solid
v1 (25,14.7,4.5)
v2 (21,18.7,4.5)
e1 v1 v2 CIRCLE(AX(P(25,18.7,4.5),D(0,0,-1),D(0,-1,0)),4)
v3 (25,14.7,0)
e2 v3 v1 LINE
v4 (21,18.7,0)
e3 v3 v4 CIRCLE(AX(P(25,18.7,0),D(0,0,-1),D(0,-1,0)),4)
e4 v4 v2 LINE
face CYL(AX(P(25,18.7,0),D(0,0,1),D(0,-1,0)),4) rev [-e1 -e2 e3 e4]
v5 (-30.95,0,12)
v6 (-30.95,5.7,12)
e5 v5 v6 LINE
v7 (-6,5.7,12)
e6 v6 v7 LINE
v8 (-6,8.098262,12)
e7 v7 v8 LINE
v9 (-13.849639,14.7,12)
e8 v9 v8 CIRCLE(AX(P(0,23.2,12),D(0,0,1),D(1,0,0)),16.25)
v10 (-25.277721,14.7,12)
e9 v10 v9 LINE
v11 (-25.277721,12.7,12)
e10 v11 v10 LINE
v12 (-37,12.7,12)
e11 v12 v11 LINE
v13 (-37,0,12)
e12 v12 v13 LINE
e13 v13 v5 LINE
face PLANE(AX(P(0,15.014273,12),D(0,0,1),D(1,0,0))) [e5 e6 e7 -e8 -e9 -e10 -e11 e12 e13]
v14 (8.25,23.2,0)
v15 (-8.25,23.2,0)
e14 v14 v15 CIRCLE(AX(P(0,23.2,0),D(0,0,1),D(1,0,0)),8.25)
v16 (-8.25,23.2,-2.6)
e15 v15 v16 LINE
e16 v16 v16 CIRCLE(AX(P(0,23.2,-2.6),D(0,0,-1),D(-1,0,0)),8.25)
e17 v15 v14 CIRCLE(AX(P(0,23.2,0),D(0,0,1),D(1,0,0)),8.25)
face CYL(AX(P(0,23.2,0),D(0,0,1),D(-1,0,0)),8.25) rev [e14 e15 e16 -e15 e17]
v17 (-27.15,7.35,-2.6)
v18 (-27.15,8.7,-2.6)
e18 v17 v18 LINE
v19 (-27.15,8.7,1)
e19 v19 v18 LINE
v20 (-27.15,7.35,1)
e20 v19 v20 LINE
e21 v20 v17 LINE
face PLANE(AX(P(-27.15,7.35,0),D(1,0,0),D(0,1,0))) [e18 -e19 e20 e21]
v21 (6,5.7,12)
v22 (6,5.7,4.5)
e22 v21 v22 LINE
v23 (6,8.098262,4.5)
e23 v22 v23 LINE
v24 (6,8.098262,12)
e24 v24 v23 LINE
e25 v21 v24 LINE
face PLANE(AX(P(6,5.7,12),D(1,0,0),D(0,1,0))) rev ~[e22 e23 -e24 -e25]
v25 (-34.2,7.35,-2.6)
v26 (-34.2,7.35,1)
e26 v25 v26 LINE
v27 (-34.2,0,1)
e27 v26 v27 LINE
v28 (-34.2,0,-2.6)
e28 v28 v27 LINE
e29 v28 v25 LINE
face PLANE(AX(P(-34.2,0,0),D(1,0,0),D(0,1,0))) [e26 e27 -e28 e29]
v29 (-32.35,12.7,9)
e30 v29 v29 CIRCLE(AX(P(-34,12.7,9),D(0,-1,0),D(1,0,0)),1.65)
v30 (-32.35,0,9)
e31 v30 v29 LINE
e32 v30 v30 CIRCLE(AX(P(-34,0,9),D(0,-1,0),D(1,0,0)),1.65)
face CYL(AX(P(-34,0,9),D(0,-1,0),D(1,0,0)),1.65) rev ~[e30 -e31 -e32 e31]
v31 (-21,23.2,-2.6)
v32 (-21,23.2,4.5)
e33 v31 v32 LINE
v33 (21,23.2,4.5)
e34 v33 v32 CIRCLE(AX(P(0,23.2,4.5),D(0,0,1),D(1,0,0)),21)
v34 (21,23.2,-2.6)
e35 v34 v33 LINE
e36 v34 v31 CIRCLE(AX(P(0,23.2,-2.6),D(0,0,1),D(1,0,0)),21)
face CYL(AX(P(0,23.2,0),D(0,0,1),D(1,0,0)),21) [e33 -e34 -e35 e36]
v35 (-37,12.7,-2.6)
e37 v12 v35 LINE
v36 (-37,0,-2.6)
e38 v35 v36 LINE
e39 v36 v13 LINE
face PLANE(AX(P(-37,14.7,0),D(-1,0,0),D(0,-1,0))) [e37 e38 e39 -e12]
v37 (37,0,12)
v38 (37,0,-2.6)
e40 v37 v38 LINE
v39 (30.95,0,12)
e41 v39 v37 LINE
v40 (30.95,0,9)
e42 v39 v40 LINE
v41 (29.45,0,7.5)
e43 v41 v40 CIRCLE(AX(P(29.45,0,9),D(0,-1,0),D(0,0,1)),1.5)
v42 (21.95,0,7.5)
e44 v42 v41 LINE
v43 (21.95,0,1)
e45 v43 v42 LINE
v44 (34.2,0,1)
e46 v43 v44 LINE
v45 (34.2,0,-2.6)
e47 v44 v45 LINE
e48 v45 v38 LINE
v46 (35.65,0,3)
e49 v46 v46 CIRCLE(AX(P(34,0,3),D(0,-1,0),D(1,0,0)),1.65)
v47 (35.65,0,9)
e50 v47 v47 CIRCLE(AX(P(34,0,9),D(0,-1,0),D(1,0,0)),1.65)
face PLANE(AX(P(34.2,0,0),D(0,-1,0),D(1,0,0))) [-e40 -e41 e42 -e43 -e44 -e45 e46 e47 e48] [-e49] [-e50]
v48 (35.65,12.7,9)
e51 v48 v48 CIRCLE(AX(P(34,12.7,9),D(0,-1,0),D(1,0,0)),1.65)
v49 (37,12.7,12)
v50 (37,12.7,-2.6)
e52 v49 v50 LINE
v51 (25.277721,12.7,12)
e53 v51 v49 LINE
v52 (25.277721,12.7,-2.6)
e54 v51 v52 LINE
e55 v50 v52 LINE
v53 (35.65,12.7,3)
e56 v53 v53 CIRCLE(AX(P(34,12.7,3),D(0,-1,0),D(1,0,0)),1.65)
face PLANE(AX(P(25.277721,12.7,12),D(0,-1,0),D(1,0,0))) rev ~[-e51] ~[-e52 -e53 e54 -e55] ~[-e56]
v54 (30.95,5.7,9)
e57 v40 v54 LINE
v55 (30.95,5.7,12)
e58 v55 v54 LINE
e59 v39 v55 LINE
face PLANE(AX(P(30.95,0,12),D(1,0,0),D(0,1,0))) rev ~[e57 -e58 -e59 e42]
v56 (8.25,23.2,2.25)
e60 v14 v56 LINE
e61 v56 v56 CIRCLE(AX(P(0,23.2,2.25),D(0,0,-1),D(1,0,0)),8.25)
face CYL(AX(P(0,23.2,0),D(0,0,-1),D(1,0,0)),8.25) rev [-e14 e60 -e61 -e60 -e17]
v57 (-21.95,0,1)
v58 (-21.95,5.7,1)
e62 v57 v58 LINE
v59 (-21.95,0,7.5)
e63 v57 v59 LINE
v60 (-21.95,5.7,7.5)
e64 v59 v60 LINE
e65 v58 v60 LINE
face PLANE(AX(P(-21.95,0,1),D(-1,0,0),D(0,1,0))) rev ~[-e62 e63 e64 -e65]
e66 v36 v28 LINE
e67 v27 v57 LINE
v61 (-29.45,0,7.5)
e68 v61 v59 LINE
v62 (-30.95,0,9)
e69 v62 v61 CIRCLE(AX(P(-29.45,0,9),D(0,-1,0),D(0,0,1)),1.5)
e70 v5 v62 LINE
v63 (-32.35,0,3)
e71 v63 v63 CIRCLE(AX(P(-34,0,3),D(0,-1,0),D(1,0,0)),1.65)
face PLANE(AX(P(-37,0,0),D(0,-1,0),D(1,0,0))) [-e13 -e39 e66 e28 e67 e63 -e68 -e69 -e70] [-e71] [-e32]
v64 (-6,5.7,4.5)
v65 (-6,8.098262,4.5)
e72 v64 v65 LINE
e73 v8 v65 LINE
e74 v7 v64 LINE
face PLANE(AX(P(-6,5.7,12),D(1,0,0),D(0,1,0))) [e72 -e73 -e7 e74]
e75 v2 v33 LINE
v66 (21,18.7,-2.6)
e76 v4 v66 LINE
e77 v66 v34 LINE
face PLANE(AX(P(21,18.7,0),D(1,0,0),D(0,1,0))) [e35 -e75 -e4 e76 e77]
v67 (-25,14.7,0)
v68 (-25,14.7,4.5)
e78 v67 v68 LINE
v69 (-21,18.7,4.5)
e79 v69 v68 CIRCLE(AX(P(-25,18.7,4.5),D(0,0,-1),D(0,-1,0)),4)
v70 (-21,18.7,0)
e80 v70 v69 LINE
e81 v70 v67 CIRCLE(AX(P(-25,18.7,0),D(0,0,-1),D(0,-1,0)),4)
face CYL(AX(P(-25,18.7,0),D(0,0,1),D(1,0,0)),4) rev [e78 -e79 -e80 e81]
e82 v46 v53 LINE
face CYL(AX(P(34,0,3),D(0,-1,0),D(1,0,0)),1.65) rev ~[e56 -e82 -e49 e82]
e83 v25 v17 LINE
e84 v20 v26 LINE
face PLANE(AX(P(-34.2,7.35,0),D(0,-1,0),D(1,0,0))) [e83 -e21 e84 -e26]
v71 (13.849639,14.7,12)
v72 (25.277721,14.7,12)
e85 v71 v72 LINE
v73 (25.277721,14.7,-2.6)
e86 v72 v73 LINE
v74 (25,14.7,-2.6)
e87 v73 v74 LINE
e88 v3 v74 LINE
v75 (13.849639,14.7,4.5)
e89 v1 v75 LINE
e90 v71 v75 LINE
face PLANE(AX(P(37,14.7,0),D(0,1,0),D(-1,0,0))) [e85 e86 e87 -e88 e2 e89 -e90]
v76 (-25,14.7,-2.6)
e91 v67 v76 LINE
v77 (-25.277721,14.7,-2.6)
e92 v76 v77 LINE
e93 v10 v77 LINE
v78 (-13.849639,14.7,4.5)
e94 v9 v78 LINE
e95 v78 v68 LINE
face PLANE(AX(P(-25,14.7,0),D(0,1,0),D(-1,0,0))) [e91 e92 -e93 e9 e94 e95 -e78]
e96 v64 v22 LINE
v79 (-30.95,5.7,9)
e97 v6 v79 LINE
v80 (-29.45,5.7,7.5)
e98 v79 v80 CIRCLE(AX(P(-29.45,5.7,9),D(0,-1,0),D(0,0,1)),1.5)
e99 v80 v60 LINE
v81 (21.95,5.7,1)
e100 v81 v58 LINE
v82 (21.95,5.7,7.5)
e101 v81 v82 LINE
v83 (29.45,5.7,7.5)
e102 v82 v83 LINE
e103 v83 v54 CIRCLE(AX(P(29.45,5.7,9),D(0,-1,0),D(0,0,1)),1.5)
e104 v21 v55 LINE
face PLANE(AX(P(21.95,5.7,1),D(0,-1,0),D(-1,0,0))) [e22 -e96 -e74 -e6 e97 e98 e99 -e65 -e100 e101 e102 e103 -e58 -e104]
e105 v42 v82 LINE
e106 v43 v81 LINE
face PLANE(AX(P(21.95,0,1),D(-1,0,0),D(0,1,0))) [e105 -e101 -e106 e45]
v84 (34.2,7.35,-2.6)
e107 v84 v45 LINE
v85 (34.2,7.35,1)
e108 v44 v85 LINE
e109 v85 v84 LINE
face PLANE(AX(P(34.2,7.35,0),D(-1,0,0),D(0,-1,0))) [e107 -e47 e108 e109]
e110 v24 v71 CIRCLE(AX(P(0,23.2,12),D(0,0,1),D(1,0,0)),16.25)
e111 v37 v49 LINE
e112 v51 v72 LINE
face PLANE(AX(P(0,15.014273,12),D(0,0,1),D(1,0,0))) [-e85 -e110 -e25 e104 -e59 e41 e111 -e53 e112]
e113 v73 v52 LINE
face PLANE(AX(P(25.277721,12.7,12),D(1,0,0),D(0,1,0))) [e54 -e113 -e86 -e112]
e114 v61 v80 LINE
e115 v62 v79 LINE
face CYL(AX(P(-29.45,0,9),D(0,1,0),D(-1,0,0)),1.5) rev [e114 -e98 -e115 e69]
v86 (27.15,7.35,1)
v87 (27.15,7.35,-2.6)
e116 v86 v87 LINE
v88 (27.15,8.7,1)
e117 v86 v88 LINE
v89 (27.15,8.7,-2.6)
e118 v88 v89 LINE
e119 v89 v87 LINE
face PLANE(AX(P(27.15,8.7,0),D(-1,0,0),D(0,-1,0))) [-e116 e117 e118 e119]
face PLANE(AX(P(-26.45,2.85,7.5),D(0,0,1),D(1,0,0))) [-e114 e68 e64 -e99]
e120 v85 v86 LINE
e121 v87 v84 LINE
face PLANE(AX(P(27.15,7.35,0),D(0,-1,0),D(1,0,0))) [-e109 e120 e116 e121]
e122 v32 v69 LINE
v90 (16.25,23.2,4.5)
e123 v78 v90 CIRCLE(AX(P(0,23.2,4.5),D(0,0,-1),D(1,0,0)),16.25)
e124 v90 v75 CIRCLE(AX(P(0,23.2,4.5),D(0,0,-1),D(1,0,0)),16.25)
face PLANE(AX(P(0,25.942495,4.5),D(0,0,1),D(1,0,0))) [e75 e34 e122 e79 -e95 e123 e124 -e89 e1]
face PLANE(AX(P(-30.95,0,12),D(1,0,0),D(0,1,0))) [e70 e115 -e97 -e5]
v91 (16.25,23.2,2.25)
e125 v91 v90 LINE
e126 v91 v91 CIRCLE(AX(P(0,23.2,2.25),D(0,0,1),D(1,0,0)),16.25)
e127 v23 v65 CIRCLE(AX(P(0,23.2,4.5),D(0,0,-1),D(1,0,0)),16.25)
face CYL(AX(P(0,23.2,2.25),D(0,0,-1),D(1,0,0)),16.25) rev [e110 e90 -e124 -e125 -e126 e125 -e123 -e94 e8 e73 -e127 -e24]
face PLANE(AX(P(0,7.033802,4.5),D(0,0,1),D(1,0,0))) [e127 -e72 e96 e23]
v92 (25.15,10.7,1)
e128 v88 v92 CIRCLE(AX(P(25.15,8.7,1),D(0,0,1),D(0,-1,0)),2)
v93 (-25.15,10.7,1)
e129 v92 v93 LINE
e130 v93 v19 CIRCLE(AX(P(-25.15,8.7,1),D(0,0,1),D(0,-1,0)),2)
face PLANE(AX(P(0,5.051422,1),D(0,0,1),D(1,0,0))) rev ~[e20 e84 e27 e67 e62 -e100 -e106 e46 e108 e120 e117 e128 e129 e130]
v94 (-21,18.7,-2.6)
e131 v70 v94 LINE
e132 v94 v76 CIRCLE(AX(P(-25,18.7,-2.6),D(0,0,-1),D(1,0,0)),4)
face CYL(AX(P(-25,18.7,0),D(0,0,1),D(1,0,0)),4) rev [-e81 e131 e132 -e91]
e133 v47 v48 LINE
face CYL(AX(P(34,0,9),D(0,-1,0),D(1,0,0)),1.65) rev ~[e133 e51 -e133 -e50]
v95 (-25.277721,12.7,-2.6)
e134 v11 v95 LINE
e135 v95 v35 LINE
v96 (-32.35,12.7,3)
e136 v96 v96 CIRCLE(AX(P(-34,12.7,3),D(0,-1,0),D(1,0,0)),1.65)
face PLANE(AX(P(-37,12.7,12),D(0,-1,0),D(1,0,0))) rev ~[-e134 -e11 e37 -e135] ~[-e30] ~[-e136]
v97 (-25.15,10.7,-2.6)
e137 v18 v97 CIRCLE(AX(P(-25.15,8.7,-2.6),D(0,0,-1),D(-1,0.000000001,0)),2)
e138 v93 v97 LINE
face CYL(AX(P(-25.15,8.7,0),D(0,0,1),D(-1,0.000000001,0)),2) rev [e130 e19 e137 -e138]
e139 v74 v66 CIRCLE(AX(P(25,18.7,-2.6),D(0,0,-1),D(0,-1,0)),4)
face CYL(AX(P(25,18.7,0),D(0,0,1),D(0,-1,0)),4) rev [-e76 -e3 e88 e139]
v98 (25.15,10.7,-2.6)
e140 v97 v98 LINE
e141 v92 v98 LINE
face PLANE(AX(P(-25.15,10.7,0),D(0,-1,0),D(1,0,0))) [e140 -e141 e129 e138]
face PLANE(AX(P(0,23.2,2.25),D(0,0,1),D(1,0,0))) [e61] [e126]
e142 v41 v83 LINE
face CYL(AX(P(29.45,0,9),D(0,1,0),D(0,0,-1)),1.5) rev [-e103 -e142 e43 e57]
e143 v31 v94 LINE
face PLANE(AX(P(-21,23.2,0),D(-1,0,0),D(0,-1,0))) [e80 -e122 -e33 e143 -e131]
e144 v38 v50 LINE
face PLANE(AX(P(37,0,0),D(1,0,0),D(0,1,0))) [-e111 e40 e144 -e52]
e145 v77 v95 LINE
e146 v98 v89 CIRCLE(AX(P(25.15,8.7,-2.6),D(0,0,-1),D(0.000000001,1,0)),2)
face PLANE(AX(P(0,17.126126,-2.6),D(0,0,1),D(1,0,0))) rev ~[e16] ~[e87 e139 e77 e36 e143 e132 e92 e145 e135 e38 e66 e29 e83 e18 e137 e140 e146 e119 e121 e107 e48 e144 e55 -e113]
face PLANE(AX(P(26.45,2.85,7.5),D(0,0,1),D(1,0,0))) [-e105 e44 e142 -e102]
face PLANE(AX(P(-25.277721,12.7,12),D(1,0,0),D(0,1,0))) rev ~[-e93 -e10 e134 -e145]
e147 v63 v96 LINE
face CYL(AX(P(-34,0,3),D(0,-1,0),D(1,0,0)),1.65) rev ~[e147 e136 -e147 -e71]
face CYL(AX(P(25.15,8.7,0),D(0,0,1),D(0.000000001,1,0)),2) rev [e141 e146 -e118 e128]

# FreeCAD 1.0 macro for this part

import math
import FreeCAD as App
import Part
import Sketcher


def edges_at(feature, points):
    """Names of the edges that pass closest to the given points."""
    edges = feature.Shape.Edges
    near = lambda p: min(range(len(edges)), key=lambda i: edges[i].distToShape(Part.Vertex(*p))[0])
    return sorted({f"Edge{near(p) + 1}" for p in points})


def add_polygon(sketch, points):
    """Adds a closed chain of lines whose ends are joined by coincident constraints."""
    first, n = sketch.GeometryCount, len(points)
    for a, b in zip(points, points[1:] + points[:1]):
        sketch.addGeometry(Part.LineSegment(App.Vector(*a, 0), App.Vector(*b, 0)), False)
    for i in range(n):
        sketch.addConstraint(Sketcher.Constraint("Coincident", first + i, 2, first + (i + 1) % n, 1))

doc = App.newDocument("Part")
params = doc.addObject("Spreadsheet::Sheet", "Params")
for row, (alias, value) in enumerate([
    ("sketch1_diameter", "32 mm"),
    ("sketch1_radius", "21 mm"),
    ("sketch1_width", "16 mm"),
    ("sketch1_height", "14.7 mm"),
    ("sketch1_height2", "8.5 mm"),
    ("pad1_length", "12 mm"),
    ("sketch2_diameter", "32 mm"),
    ("sketch2_diameter2", "16.5 mm"),
    ("pad2_length", "2.5 mm"),
    ("sketch3_width", "54.3 mm"),
    ("sketch3_width2", "68.4 mm"),
    ("sketch3_height", "7.35 mm"),
    ("sketch3_height2", "3.35 mm"),
    ("pocket1_length", "1 mm"),
    ("sketch4_width", "43.9 mm"),
    ("sketch4_height", "5.7 mm"),
    ("sketch5_diameter", "3.3 mm"),
    ("sketch6_radius", "21 mm"),
    ("sketch6_height", "8.5 mm"),
    ("pocket4_length", "7.5 mm"),
    ("fillet_radius", "2 mm"),
    ("fillet2_radius", "4 mm"),
    ("sketch7_width", "9 mm"),
    ("sketch7_height", "5.7 mm"),
    ("pocket5_length", "4.5 mm"),
    ("sketch8_width", "12 mm"),
    ("pocket6_length", "7.5 mm"),
    ("sketch9_radius", "2 mm"),
    ("sketch9_radius2", "4 mm"),
    ("sketch9_radius3", "21 mm"),
    ("sketch9_diameter", "16.5 mm"),
    ("sketch9_width", "12 mm"),
    ("pad3_length", "2.6 mm"),
    ("fillet3_radius", "1.5 mm"),
    ("sketch10_height", "2 mm"),
    ("sketch11_height", "2 mm"),
    ("sketch12_diameter", "32.5 mm"),
    ("pocket9_length", "9.75 mm"),
], start=1):
    params.set(f"A{row}", alias)
    params.set(f"B{row}", "=" + value)
    params.setAlias(f"B{row}", alias)

body = doc.addObject("PartDesign::Body", "Body")

# Sketch on XY plane
sketch1 = body.newObject("Sketcher::SketchObject", "Sketch")
sketch1.AttachmentSupport = (doc.getObject("XY_Plane"), [""])
sketch1.MapMode = "FlatFace"
sketch1.addGeometry([
    Part.LineSegment(App.Vector(37, 0, 0), App.Vector(37, 14.7, 0)),  # 0
    Part.LineSegment(App.Vector(37, 14.7, 0), App.Vector(21, 14.7, 0)),  # 1
    Part.LineSegment(App.Vector(21, 14.7, 0), App.Vector(21, 23.2, 0)),  # 2
    Part.ArcOfCircle(Part.Circle(App.Vector(0, 23.2, 0), App.Vector(0, 0, 1), 21), math.radians(0), math.radians(180)),  # 3
    Part.LineSegment(App.Vector(-21, 23.2, 0), App.Vector(-21, 14.7, 0)),  # 4
    Part.LineSegment(App.Vector(-21, 14.7, 0), App.Vector(-37, 14.7, 0)),  # 5
    Part.LineSegment(App.Vector(-37, 14.7, 0), App.Vector(-37, 0, 0)),  # 6
    Part.LineSegment(App.Vector(-37, 0, 0), App.Vector(37, 0, 0)),  # 7
    Part.Circle(App.Vector(0, 23.2, 0), App.Vector(0, 0, 1), 16),  # 8
], False)
sketch1.addConstraint([
    Sketcher.Constraint("Coincident", 0, 2, 1, 1),
    Sketcher.Constraint("Coincident", 1, 2, 2, 1),
    Sketcher.Constraint("Tangent", 2, 2, 3, 1),
    Sketcher.Constraint("Tangent", 3, 2, 4, 1),
    Sketcher.Constraint("Coincident", 4, 2, 5, 1),
    Sketcher.Constraint("Coincident", 5, 2, 6, 1),
    Sketcher.Constraint("Coincident", 6, 2, 7, 1),
    Sketcher.Constraint("Coincident", 7, 2, 0, 1),
    Sketcher.Constraint("Vertical", 0),
    Sketcher.Constraint("Horizontal", 1),
    Sketcher.Constraint("Vertical", 2),
    Sketcher.Constraint("Vertical", 4),
    Sketcher.Constraint("Horizontal", 5),
    Sketcher.Constraint("Vertical", 6),
    Sketcher.Constraint("Horizontal", 7),
    Sketcher.Constraint("Coincident", 8, 3, 3, 3),
    Sketcher.Constraint("Symmetric", 6, 2, 7, 2, -1, 1),
    Sketcher.Constraint("Symmetric", 1, 2, 4, 2, -2),
    Sketcher.Constraint("Diameter", 8, 32.0),
    Sketcher.Constraint("Radius", 3, 21.0),
    Sketcher.Constraint("DistanceX", 1, 2, 1, 1, 16.0),
    Sketcher.Constraint("DistanceY", 0, 1, 0, 2, 14.7),
    Sketcher.Constraint("DistanceY", 2, 1, 2, 2, 8.5),
])
sketch1.setExpression("Constraints[18]", "Params.sketch1_diameter")
sketch1.setExpression("Constraints[19]", "Params.sketch1_radius")
sketch1.setExpression("Constraints[20]", "Params.sketch1_width")
sketch1.setExpression("Constraints[21]", "Params.sketch1_height")
sketch1.setExpression("Constraints[22]", "Params.sketch1_height2")
pad1 = body.newObject("PartDesign::Pad", "Pad")
pad1.Profile = sketch1
pad1.setExpression("Length", "Params.pad1_length")

# Sketch on XY plane
sketch2 = body.newObject("Sketcher::SketchObject", "Sketch001")
sketch2.AttachmentSupport = (doc.getObject("XY_Plane"), [""])
sketch2.MapMode = "FlatFace"
sketch2.addGeometry([
    Part.Circle(App.Vector(0, 23.2, 0), App.Vector(0, 0, 1), 16),
    Part.Circle(App.Vector(0, 23.2, 0), App.Vector(0, 0, 1), 8.25),
], False)
sketch2.addConstraint([
    Sketcher.Constraint("Coincident", 1, 3, 0, 3),
    Sketcher.Constraint("PointOnObject", 0, 3, -2),
    Sketcher.Constraint("Diameter", 0, 32.0),
    Sketcher.Constraint("Diameter", 1, 16.5),
    Sketcher.Constraint("DistanceY", -1, 1, 0, 3, 23.2),
])
sketch2.setExpression("Constraints[2]", "Params.sketch2_diameter")
sketch2.setExpression("Constraints[3]", "Params.sketch2_diameter2")
pad2 = body.newObject("PartDesign::Pad", "Pad001")
pad2.Profile = sketch2
pad2.setExpression("Length", "Params.pad2_length")

# Sketch on XY plane
sketch3 = body.newObject("Sketcher::SketchObject", "Sketch002")
sketch3.AttachmentSupport = (doc.getObject("XY_Plane"), [""])
sketch3.MapMode = "FlatFace"
add_polygon(sketch3, [(34.2, 0), (34.2, 7.35), (27.15, 7.35), (27.15, 10.7), (-27.15, 10.7), (-27.15, 7.35), (-34.2, 7.35), (-34.2, 0)])  # lines 0-7
sketch3.addConstraint([
    Sketcher.Constraint("Vertical", 0),
    Sketcher.Constraint("Horizontal", 1),
    Sketcher.Constraint("Vertical", 2),
    Sketcher.Constraint("Horizontal", 3),
    Sketcher.Constraint("Vertical", 4),
    Sketcher.Constraint("Horizontal", 5),
    Sketcher.Constraint("Vertical", 6),
    Sketcher.Constraint("Horizontal", 7),
    Sketcher.Constraint("Symmetric", 6, 2, 7, 2, -1, 1),
    Sketcher.Constraint("Symmetric", 1, 2, 4, 2, -2),
    Sketcher.Constraint("DistanceX", 3, 2, 3, 1, 54.3),
    Sketcher.Constraint("DistanceX", 7, 1, 7, 2, 68.4),
    Sketcher.Constraint("DistanceY", 0, 1, 0, 2, 7.35),
    Sketcher.Constraint("DistanceY", 2, 1, 2, 2, 3.35),
])
sketch3.setExpression("Constraints[18]", "Params.sketch3_width")
sketch3.setExpression("Constraints[19]", "Params.sketch3_width2")
sketch3.setExpression("Constraints[20]", "Params.sketch3_height")
sketch3.setExpression("Constraints[21]", "Params.sketch3_height2")
pocket1 = body.newObject("PartDesign::Pocket", "Pocket")
pocket1.Profile = sketch3
pocket1.setExpression("Length", "Params.pocket1_length")
pocket1.Reversed = True

# Sketch on XY plane
sketch4 = body.newObject("Sketcher::SketchObject", "Sketch003")
sketch4.AttachmentSupport = (doc.getObject("XY_Plane"), [""])
sketch4.MapMode = "FlatFace"
sketch4.AttachmentOffset = App.Placement(App.Vector(0, 0, 1), App.Rotation())
add_polygon(sketch4, [(21.95, 5.7), (21.95, 0), (-21.95, 0), (-21.95, 5.7)])  # lines 0-3
sketch4.addConstraint([
    Sketcher.Constraint("Vertical", 0),
    Sketcher.Constraint("Horizontal", 1),
    Sketcher.Constraint("Vertical", 2),
    Sketcher.Constraint("Horizontal", 3),
    Sketcher.Constraint("Symmetric", 0, 2, 1, 2, -1, 1),
    Sketcher.Constraint("DistanceX", 1, 2, 1, 1, 43.9),
    Sketcher.Constraint("DistanceY", 0, 2, 0, 1, 5.7),
])
sketch4.setExpression("Constraints[9]", "Params.sketch4_width")
sketch4.setExpression("Constraints[10]", "Params.sketch4_height")
pocket2 = body.newObject("PartDesign::Pocket", "Pocket001")
pocket2.Profile = sketch4
pocket2.Type = "UpToFirst"
pocket2.Reversed = True

# Sketch on XZ plane
sketch5 = body.newObject("Sketcher::SketchObject", "Sketch004")
sketch5.AttachmentSupport = (doc.getObject("XZ_Plane"), [""])
sketch5.MapMode = "FlatFace"
sketch5.addGeometry([
    Part.Circle(App.Vector(-34, 9, 0), App.Vector(0, 0, 1), 1.65),
    Part.Circle(App.Vector(-34, 3, 0), App.Vector(0, 0, 1), 1.65),
    Part.Circle(App.Vector(34, 3, 0), App.Vector(0, 0, 1), 1.65),
    Part.Circle(App.Vector(34, 9, 0), App.Vector(0, 0, 1), 1.65),
], False)
sketch5.addConstraint([
    Sketcher.Constraint("Equal", 0, 1),
    Sketcher.Constraint("Equal", 1, 2),
    Sketcher.Constraint("Equal", 2, 3),
    Sketcher.Constraint("Symmetric", 1, 3, 2, 3, -2),
    Sketcher.Constraint("Symmetric", 0, 3, 3, 3, -2),
    Sketcher.Constraint("Vertical", 0, 3, 1, 3),
    Sketcher.Constraint("Diameter", 0, 3.3),
    Sketcher.Constraint("DistanceX", 0, 3, -1, 1, 34.0),
    Sketcher.Constraint("DistanceY", -1, 1, 0, 3, 9.0),
    Sketcher.Constraint("DistanceY", -1, 1, 1, 3, 3.0),
])
sketch5.setExpression("Constraints[6]", "Params.sketch5_diameter")
pocket3 = body.newObject("PartDesign::Pocket", "Pocket002")
pocket3.Profile = sketch5
pocket3.Type = "ThroughAll"

# Sketch on XY plane
sketch6 = body.newObject("Sketcher::SketchObject", "Sketch005")
sketch6.AttachmentSupport = (doc.getObject("XY_Plane"), [""])
sketch6.MapMode = "FlatFace"
sketch6.AttachmentOffset = App.Placement(App.Vector(0, 0, 4.5), App.Rotation())
sketch6.addGeometry([
    Part.LineSegment(App.Vector(21, 14.7, 0), App.Vector(21, 23.2, 0)),
    Part.ArcOfCircle(Part.Circle(App.Vector(0, 23.2, 0), App.Vector(0, 0, 1), 21), math.radians(0), math.radians(180)),
    Part.LineSegment(App.Vector(-21, 23.2, 0), App.Vector(-21, 14.7, 0)),
    Part.LineSegment(App.Vector(-21, 14.7, 0), App.Vector(21, 14.7, 0)),
], False)
sketch6.addConstraint([
    Sketcher.Constraint("Tangent", 0, 2, 1, 1),
    Sketcher.Constraint("Tangent", 1, 2, 2, 1),
    Sketcher.Constraint("Coincident", 2, 2, 3, 1),
    Sketcher.Constraint("Coincident", 3, 2, 0, 1),
    Sketcher.Constraint("Vertical", 0),
    Sketcher.Constraint("Vertical", 2),
    Sketcher.Constraint("Horizontal", 3),
    Sketcher.Constraint("PointOnObject", 1, 3, -2),
    Sketcher.Constraint("Radius", 1, 21.0),
    Sketcher.Constraint("DistanceY", 0, 1, 0, 2, 8.5),
    Sketcher.Constraint("DistanceY", -1, 1, 1, 3, 23.2),
])
sketch6.setExpression("Constraints[8]", "Params.sketch6_radius")
sketch6.setExpression("Constraints[9]", "Params.sketch6_height")
pocket4 = body.newObject("PartDesign::Pocket", "Pocket003")
pocket4.Profile = sketch6
pocket4.setExpression("Length", "Params.pocket4_length")
pocket4.Reversed = True
doc.recompute()

fillet = body.newObject("PartDesign::Fillet", "Fillet")
fillet.Base = (pocket4, edges_at(pocket4, [(27.15, 10.7, 0.5), (-27.15, 10.7, 0.5)]))
fillet.setExpression("Radius", "Params.fillet_radius")
doc.recompute()

fillet2 = body.newObject("PartDesign::Fillet", "Fillet001")
fillet2.Base = (fillet, edges_at(fillet, [(-21, 14.7, 2.25), (21, 14.7, 2.25)]))
fillet2.setExpression("Radius", "Params.fillet2_radius")

# Sketch on XY plane
sketch7 = body.newObject("Sketcher::SketchObject", "Sketch006")
sketch7.AttachmentSupport = (doc.getObject("XY_Plane"), [""])
sketch7.MapMode = "FlatFace"
sketch7.AttachmentOffset = App.Placement(App.Vector(0, 0, 12), App.Rotation())
add_polygon(sketch7, [(21.95, 5.7), (21.95, 0), (30.95, 0), (30.95, 5.7)])  # lines 0-3
add_polygon(sketch7, [(-30.95, 5.7), (-30.95, 0), (-21.95, 0), (-21.95, 5.7)])  # lines 4-7
sketch7.addConstraint([
    Sketcher.Constraint("Vertical", 0),
    Sketcher.Constraint("Horizontal", 1),
    Sketcher.Constraint("Vertical", 2),
    Sketcher.Constraint("Horizontal", 3),
    Sketcher.Constraint("Vertical", 4),
    Sketcher.Constraint("Horizontal", 5),
    Sketcher.Constraint("Vertical", 6),
    Sketcher.Constraint("Horizontal", 7),
    Sketcher.Constraint("Symmetric", 1, 2, 4, 2, -1, 1),
    Sketcher.Constraint("Symmetric", 0, 2, 5, 2, -2),
    Sketcher.Constraint("Horizontal", 3, 2, 6, 2),
    Sketcher.Constraint("DistanceX", 1, 1, 1, 2, 9.0),
    Sketcher.Constraint("DistanceY", 0, 2, 0, 1, 5.7),
    Sketcher.Constraint("DistanceX", 4, 2, 0, 2, 52.9),
])
sketch7.setExpression("Constraints[19]", "Params.sketch7_width")
sketch7.setExpression("Constraints[20]", "Params.sketch7_height")
pocket5 = body.newObject("PartDesign::Pocket", "Pocket004")
pocket5.Profile = sketch7
pocket5.setExpression("Length", "Params.pocket5_length")

# Sketch on XY plane
sketch8 = body.newObject("Sketcher::SketchObject", "Sketch007")
sketch8.AttachmentSupport = (doc.getObject("XY_Plane"), [""])
sketch8.MapMode = "FlatFace"
sketch8.AttachmentOffset = App.Placement(App.Vector(0, 0, 12), App.Rotation())
add_polygon(sketch8, [(-6, 8.367603), (-6, 5.7), (6, 5.7), (6, 8.367603)])  # lines 0-3
sketch8.addConstraint([
    Sketcher.Constraint("Vertical", 0),
    Sketcher.Constraint("Horizontal", 1),
    Sketcher.Constraint("Vertical", 2),
    Sketcher.Constraint("Horizontal", 3),
    Sketcher.Constraint("DistanceX", 1, 1, 1, 2, 12.0),
    Sketcher.Constraint("DistanceX", 0, 2, -1, 1, 6.0),
    Sketcher.Constraint("DistanceY", -1, 1, 0, 2, 5.7),
    Sketcher.Constraint("DistanceY", 0, 2, 0, 1, 2.667603),
])
sketch8.setExpression("Constraints[8]", "Params.sketch8_width")
pocket6 = body.newObject("PartDesign::Pocket", "Pocket005")
pocket6.Profile = sketch8
pocket6.setExpression("Length", "Params.pocket6_length")

# Sketch on XY plane
sketch9 = body.newObject("Sketcher::SketchObject", "Sketch008")
sketch9.AttachmentSupport = (doc.getObject("XY_Plane"), [""])
sketch9.MapMode = "FlatFace"
sketch9.addGeometry([
    Part.LineSegment(App.Vector(25, 14.7, 0), App.Vector(37, 14.7, 0)),  # 0
    Part.LineSegment(App.Vector(37, 14.7, 0), App.Vector(37, 0, 0)),  # 1
    Part.LineSegment(App.Vector(37, 0, 0), App.Vector(34.2, 0, 0)),  # 2
    Part.LineSegment(App.Vector(34.2, 0, 0), App.Vector(34.2, 7.35, 0)),  # 3
    Part.LineSegment(App.Vector(34.2, 7.35, 0), App.Vector(27.15, 7.35, 0)),  # 4
    Part.LineSegment(App.Vector(27.15, 7.35, 0), App.Vector(27.15, 8.7, 0)),  # 5
    Part.ArcOfCircle(Part.Circle(App.Vector(25.15, 8.7, 0), App.Vector(0, 0, 1), 2), math.radians(0), math.radians(90)),  # 6
    Part.LineSegment(App.Vector(25.15, 10.7, 0), App.Vector(-25.15, 10.7, 0)),  # 7
    Part.ArcOfCircle(Part.Circle(App.Vector(-25.15, 8.7, 0), App.Vector(0, 0, 1), 2), math.radians(90), math.radians(180)),  # 8
    Part.LineSegment(App.Vector(-27.15, 8.7, 0), App.Vector(-27.15, 7.35, 0)),  # 9
    Part.LineSegment(App.Vector(-27.15, 7.35, 0), App.Vector(-34.2, 7.35, 0)),  # 10
    Part.LineSegment(App.Vector(-34.2, 7.35, 0), App.Vector(-34.2, 0, 0)),  # 11
    Part.LineSegment(App.Vector(-34.2, 0, 0), App.Vector(-37, 0, 0)),  # 12
    Part.LineSegment(App.Vector(-37, 0, 0), App.Vector(-37, 14.7, 0)),  # 13
    Part.LineSegment(App.Vector(-37, 14.7, 0), App.Vector(-25, 14.7, 0)),  # 14
    Part.ArcOfCircle(Part.Circle(App.Vector(-25, 18.7, 0), App.Vector(0, 0, 1), 4), math.radians(-90), math.radians(0)),  # 15
    Part.LineSegment(App.Vector(-21, 18.7, 0), App.Vector(-21, 23.2, 0)),  # 16
    Part.ArcOfCircle(Part.Circle(App.Vector(0, 23.2, 0), App.Vector(0, 0, 1), 21), math.radians(0), math.radians(180)),  # 17
    Part.LineSegment(App.Vector(21, 23.2, 0), App.Vector(21, 18.7, 0)),  # 18
    Part.ArcOfCircle(Part.Circle(App.Vector(25, 18.7, 0), App.Vector(0, 0, 1), 4), math.radians(180), math.radians(270)),  # 19
    Part.Circle(App.Vector(0, 23.2, 0), App.Vector(0, 0, 1), 8.25),  # 20
], False)
sketch9.addConstraint([
    Sketcher.Constraint("Coincident", 0, 2, 1, 1),
    Sketcher.Constraint("Coincident", 1, 2, 2, 1),
    Sketcher.Constraint("Coincident", 2, 2, 3, 1),
    Sketcher.Constraint("Coincident", 3, 2, 4, 1),
    Sketcher.Constraint("Coincident", 4, 2, 5, 1),
    Sketcher.Constraint("Tangent", 5, 2, 6, 1),
    Sketcher.Constraint("Tangent", 6, 2, 7, 1),
    Sketcher.Constraint("Tangent", 7, 2, 8, 1),
    Sketcher.Constraint("Tangent", 8, 2, 9, 1),
    Sketcher.Constraint("Coincident", 9, 2, 10, 1),
    Sketcher.Constraint("Coincident", 10, 2, 11, 1),
    Sketcher.Constraint("Coincident", 11, 2, 12, 1),
    Sketcher.Constraint("Coincident", 12, 2, 13, 1),
    Sketcher.Constraint("Coincident", 13, 2, 14, 1),
    Sketcher.Constraint("Tangent", 14, 2, 15, 1),
    Sketcher.Constraint("Tangent", 15, 2, 16, 1),
    Sketcher.Constraint("Tangent", 16, 2, 17, 2),
    Sketcher.Constraint("Tangent", 17, 1, 18, 1),
    Sketcher.Constraint("Tangent", 18, 2, 19, 1),
    Sketcher.Constraint("Tangent", 19, 2, 0, 1),
    Sketcher.Constraint("Horizontal", 0),
    Sketcher.Constraint("Vertical", 1),
    Sketcher.Constraint("Horizontal", 2),
    Sketcher.Constraint("Vertical", 3),
    Sketcher.Constraint("Horizontal", 4),
    Sketcher.Constraint("Vertical", 5),
    Sketcher.Constraint("Horizontal", 7),
    Sketcher.Constraint("Vertical", 9),
    Sketcher.Constraint("Horizontal", 10),
    Sketcher.Constraint("Vertical", 11),
    Sketcher.Constraint("Horizontal", 12),
    Sketcher.Constraint("Vertical", 13),
    Sketcher.Constraint("Horizontal", 14),
    Sketcher.Constraint("Vertical", 16),
    Sketcher.Constraint("Vertical", 18),
    Sketcher.Constraint("Coincident", 20, 3, 17, 3),
    Sketcher.Constraint("Equal", 6, 8),
    Sketcher.Constraint("Equal", 15, 19),
    Sketcher.Constraint("Symmetric", 2, 2, 11, 2, -1, 1),
    Sketcher.Constraint("Symmetric", 15, 3, 19, 3, -2),
    Sketcher.Constraint("Symmetric", 4, 2, 9, 2, -2),
    Sketcher.Constraint("Symmetric", 1, 2, 12, 2, -2),
    Sketcher.Constraint("Radius", 6, 2.0),
    Sketcher.Constraint("Radius", 15, 4.0),
    Sketcher.Constraint("Radius", 17, 21.0),
    Sketcher.Constraint("Diameter", 20, 16.5),
    Sketcher.Constraint("DistanceX", 0, 1, 0, 2, 12.0),
    Sketcher.Constraint("DistanceX", 2, 2, 2, 1, 2.8),
    Sketcher.Constraint("DistanceX", 7, 2, 7, 1, 50.3),
    Sketcher.Constraint("DistanceY", 1, 2, 1, 1, 14.7),
    Sketcher.Constraint("DistanceY", 16, 1, 16, 2, 4.5),
    Sketcher.Constraint("DistanceY", 8, 3, 15, 3, 10.0),
    Sketcher.Constraint("DistanceY", 3, 1, 3, 2, 7.35),
])
sketch9.setExpression("Constraints[42]", "Params.sketch9_radius")
sketch9.setExpression("Constraints[43]", "Params.sketch9_radius2")
sketch9.setExpression("Constraints[44]", "Params.sketch9_radius3")
sketch9.setExpression("Constraints[45]", "Params.sketch9_diameter")
sketch9.setExpression("Constraints[46]", "Params.sketch9_width")
pad3 = body.newObject("PartDesign::Pad", "Pad002")
pad3.Profile = sketch9
pad3.setExpression("Length", "Params.pad3_length")
pad3.Reversed = True
doc.recompute()

fillet3 = body.newObject("PartDesign::Fillet", "Fillet002")
fillet3.Base = (pad3, edges_at(pad3, [(30.95, 2.85, 7.5), (-30.95, 2.85, 7.5)]))
fillet3.setExpression("Radius", "Params.fillet3_radius")

# Sketch on XY plane
sketch10 = body.newObject("Sketcher::SketchObject", "Sketch009")
sketch10.AttachmentSupport = (doc.getObject("XY_Plane"), [""])
sketch10.MapMode = "FlatFace"
sketch10.AttachmentOffset = App.Placement(App.Vector(0, 0, 12), App.Rotation())
add_polygon(sketch10, [(-37, 14.7), (-37, 12.7), (-25.277721, 12.7), (-25.277721, 14.7)])  # lines 0-3
sketch10.addConstraint([
    Sketcher.Constraint("Vertical", 0),
    Sketcher.Constraint("Horizontal", 1),
    Sketcher.Constraint("Vertical", 2),
    Sketcher.Constraint("Horizontal", 3),
    Sketcher.Constraint("DistanceY", 0, 2, 0, 1, 2.0),
    Sketcher.Constraint("DistanceX", 0, 2, -1, 1, 37.0),
    Sketcher.Constraint("DistanceY", -1, 1, 0, 2, 12.7),
    Sketcher.Constraint("DistanceX", 1, 1, 1, 2, 11.722279),
])
sketch10.setExpression("Constraints[8]", "Params.sketch10_height")
pocket7 = body.newObject("PartDesign::Pocket", "Pocket006")
pocket7.Profile = sketch10
pocket7.Type = "UpToFirst"

# Sketch on XY plane
sketch11 = body.newObject("Sketcher::SketchObject", "Sketch010")
sketch11.AttachmentSupport = (doc.getObject("XY_Plane"), [""])
sketch11.MapMode = "FlatFace"
sketch11.AttachmentOffset = App.Placement(App.Vector(0, 0, 12), App.Rotation())
add_polygon(sketch11, [(25.277721, 14.7), (25.277721, 12.7), (37, 12.7), (37, 14.7)])  # lines 0-3
sketch11.addConstraint([
    Sketcher.Constraint("Vertical", 0),
    Sketcher.Constraint("Horizontal", 1),
    Sketcher.Constraint("Vertical", 2),
    Sketcher.Constraint("Horizontal", 3),
    Sketcher.Constraint("DistanceY", 0, 2, 0, 1, 2.0),
    Sketcher.Constraint("DistanceX", -1, 1, 1, 2, 37.0),
    Sketcher.Constraint("DistanceY", -1, 1, 0, 2, 12.7),
    Sketcher.Constraint("DistanceX", 1, 1, 1, 2, 11.722279),
])
sketch11.setExpression("Constraints[8]", "Params.sketch11_height")
pocket8 = body.newObject("PartDesign::Pocket", "Pocket007")
pocket8.Profile = sketch11
pocket8.Type = "UpToFirst"

# Sketch on XY plane
sketch12 = body.newObject("Sketcher::SketchObject", "Sketch011")
sketch12.AttachmentSupport = (doc.getObject("XY_Plane"), [""])
sketch12.MapMode = "FlatFace"
sketch12.AttachmentOffset = App.Placement(App.Vector(0, 0, 2.25), App.Rotation())
sketch12.addGeometry(Part.Circle(App.Vector(0, 23.2, 0), App.Vector(0, 0, 1), 16.25), False)
sketch12.addConstraint([
    Sketcher.Constraint("PointOnObject", 0, 3, -2),
    Sketcher.Constraint("Diameter", 0, 32.5),
    Sketcher.Constraint("DistanceY", -1, 1, 0, 3, 23.2),
])
sketch12.setExpression("Constraints[1]", "Params.sketch12_diameter")
pocket9 = body.newObject("PartDesign::Pocket", "Pocket008")
pocket9.Profile = sketch12
pocket9.setExpression("Length", "Params.pocket9_length")
pocket9.Reversed = True

doc.recompute()
